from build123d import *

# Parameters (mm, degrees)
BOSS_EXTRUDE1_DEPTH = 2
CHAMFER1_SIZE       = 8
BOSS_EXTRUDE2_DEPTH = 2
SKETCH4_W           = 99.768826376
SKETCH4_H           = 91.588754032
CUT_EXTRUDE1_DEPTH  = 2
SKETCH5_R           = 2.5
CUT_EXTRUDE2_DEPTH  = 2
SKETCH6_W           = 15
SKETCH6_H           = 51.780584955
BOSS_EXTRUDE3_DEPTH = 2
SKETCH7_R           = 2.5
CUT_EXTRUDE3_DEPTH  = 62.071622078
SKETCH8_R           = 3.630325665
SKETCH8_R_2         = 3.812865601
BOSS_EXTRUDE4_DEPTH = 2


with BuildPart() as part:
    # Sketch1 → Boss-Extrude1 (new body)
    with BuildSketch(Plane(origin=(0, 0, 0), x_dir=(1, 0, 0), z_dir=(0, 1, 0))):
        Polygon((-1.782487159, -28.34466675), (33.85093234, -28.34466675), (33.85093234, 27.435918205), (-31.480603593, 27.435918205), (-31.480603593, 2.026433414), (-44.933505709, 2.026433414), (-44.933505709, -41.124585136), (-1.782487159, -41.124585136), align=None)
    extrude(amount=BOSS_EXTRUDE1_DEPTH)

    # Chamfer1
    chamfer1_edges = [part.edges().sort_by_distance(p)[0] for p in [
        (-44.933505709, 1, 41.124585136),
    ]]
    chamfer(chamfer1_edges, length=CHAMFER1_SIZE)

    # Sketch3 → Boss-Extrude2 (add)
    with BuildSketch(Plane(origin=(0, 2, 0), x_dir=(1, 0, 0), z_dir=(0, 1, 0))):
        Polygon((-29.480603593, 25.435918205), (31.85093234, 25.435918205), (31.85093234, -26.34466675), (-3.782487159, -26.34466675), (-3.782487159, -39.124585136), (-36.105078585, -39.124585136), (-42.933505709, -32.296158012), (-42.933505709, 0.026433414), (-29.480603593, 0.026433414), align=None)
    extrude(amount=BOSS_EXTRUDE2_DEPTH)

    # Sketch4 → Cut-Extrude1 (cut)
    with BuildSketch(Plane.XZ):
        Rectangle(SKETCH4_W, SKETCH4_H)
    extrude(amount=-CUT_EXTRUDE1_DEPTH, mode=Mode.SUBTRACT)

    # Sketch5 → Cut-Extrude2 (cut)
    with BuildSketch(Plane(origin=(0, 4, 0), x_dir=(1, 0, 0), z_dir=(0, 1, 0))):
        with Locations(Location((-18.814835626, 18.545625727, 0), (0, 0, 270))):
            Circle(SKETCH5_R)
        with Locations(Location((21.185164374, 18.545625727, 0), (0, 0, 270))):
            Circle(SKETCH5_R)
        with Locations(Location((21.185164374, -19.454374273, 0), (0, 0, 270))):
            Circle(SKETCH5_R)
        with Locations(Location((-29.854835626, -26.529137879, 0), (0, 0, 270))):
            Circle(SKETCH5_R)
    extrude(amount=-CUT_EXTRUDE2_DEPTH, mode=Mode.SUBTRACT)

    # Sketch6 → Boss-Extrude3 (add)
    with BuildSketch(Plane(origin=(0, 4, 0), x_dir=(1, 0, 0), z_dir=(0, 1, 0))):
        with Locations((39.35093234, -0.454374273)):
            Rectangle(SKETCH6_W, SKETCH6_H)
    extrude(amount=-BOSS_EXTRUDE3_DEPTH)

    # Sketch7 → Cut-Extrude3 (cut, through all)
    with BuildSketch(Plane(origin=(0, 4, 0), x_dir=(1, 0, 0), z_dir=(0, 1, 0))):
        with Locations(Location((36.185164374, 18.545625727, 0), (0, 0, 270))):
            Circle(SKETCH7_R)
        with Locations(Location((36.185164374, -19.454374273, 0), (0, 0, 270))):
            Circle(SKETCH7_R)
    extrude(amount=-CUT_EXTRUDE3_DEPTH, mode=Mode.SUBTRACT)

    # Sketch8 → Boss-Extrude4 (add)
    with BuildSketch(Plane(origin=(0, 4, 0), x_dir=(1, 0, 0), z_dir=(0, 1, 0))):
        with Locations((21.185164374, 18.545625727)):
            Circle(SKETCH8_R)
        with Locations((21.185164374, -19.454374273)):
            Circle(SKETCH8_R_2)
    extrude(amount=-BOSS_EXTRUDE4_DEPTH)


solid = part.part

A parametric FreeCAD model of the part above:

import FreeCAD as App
import Part
import Sketcher
from FreeCAD import Vector
Q = App.Units.Quantity


def edges_at(feature, points):
    """Names of the edges that pass closest to the given points."""
    edges = feature.Shape.Edges
    near = lambda p: min(range(len(edges)), key=lambda i: edges[i].distToShape(Part.Vertex(*p))[0])
    return sorted({f"Edge{near(p) + 1}" for p in points})

doc = App.newDocument("Part")
body = doc.addObject("PartDesign::Body", "Body")

# Sketch on XZ plane
sketch1 = doc.addObject("Sketcher::SketchObject", "Sketch")
body.addObject(sketch1)
sketch1.AttachmentSupport = (doc.XZ_Plane, [""])
sketch1.MapMode = "FlatFace"
sketch1.addGeometry([
    Part.LineSegment(Vector(-1.782487, 28.344667, 0), Vector(33.850932, 28.344667, 0)),  # 0
    Part.LineSegment(Vector(33.850932, 28.344667, 0), Vector(33.850932, -27.435918, 0)),  # 1
    Part.LineSegment(Vector(33.850932, -27.435918, 0), Vector(-31.480604, -27.435918, 0)),  # 2
    Part.LineSegment(Vector(-31.480604, -27.435918, 0), Vector(-31.480604, -2.026433, 0)),  # 3
    Part.LineSegment(Vector(-31.480604, -2.026433, 0), Vector(-44.933506, -2.026433, 0)),  # 4
    Part.LineSegment(Vector(-44.933506, -2.026433, 0), Vector(-44.933506, 41.124585, 0)),  # 5
    Part.LineSegment(Vector(-44.933506, 41.124585, 0), Vector(-1.782487, 41.124585, 0)),  # 6
    Part.LineSegment(Vector(-1.782487, 41.124585, 0), Vector(-1.782487, 28.344667, 0)),  # 7
], False)
sketch1.addConstraint([
    Sketcher.Constraint("Coincident", 0, 2, 1, 1),
    Sketcher.Constraint("Coincident", 1, 2, 2, 1),
    Sketcher.Constraint("Coincident", 2, 2, 3, 1),
    Sketcher.Constraint("Coincident", 3, 2, 4, 1),
    Sketcher.Constraint("Coincident", 4, 2, 5, 1),
    Sketcher.Constraint("Coincident", 5, 2, 6, 1),
    Sketcher.Constraint("Coincident", 6, 2, 7, 1),
    Sketcher.Constraint("Coincident", 7, 2, 0, 1),
    Sketcher.Constraint("Horizontal", 0),
    Sketcher.Constraint("Vertical", 1),
    Sketcher.Constraint("Horizontal", 2),
    Sketcher.Constraint("Vertical", 3),
    Sketcher.Constraint("Horizontal", 4),
    Sketcher.Constraint("Vertical", 5),
    Sketcher.Constraint("Horizontal", 6),
    Sketcher.Constraint("Vertical", 7),
    Sketcher.Constraint("Equal", 6, 5),
    Sketcher.Constraint("DistanceX", 0, 1, 0, 2, 35.633419),
    Sketcher.Constraint("DistanceX", 6, 1, 6, 2, 43.151019),
    Sketcher.Constraint("DistanceY", 7, 2, 7, 1, 12.779918),
    Sketcher.Constraint("DistanceX", 2, 2, 2, 1, 65.331536),
    Sketcher.Constraint("DistanceY", 1, 2, 1, 1, 55.780585),
    Sketcher.Constraint("DistanceY", 1, 2, -1, 1, 27.435918),
    Sketcher.Constraint("DistanceX", -1, 1, 0, 2, 33.850932),
])
pad1 = doc.addObject("PartDesign::Pad", "Pad")
body.addObject(pad1)
pad1.Profile = sketch1
pad1.Length = 2
pad1.Reversed = True
doc.recompute()

chamfer = doc.addObject("PartDesign::Chamfer", "Chamfer")
body.addObject(chamfer)
chamfer.Base = (pad1, edges_at(pad1, [(-44.934, 1, 41.125)]))
chamfer.Size = 8

# Sketch on XZ plane
sketch2 = doc.addObject("Sketcher::SketchObject", "Sketch001")
body.addObject(sketch2)
sketch2.AttachmentSupport = (doc.XZ_Plane, [""])
sketch2.MapMode = "FlatFace"
sketch2.AttachmentOffset = App.Placement(Vector(0, 0, -2), App.Rotation())
sketch2.addGeometry([
    Part.LineSegment(Vector(31.850932, -25.435918, 0), Vector(-29.480604, -25.435918, 0)),  # 0
    Part.LineSegment(Vector(-29.480604, -25.435918, 0), Vector(-29.480604, -0.026433, 0)),  # 1
    Part.LineSegment(Vector(-29.480604, -0.026433, 0), Vector(-42.933506, -0.026433, 0)),  # 2
    Part.LineSegment(Vector(-42.933506, -0.026433, 0), Vector(-42.933506, 32.296158, 0)),  # 3
    Part.LineSegment(Vector(-42.933506, 32.296158, 0), Vector(-36.105079, 39.124585, 0)),  # 4
    Part.LineSegment(Vector(-36.105079, 39.124585, 0), Vector(-3.782487, 39.124585, 0)),  # 5
    Part.LineSegment(Vector(-3.782487, 39.124585, 0), Vector(-3.782487, 26.344667, 0)),  # 6
    Part.LineSegment(Vector(-3.782487, 26.344667, 0), Vector(31.850932, 26.344667, 0)),  # 7
    Part.LineSegment(Vector(31.850932, 26.344667, 0), Vector(31.850932, -25.435918, 0)),  # 8
], False)
sketch2.addConstraint([
    Sketcher.Constraint("Coincident", 0, 2, 1, 1),
    Sketcher.Constraint("Coincident", 1, 2, 2, 1),
    Sketcher.Constraint("Coincident", 2, 2, 3, 1),
    Sketcher.Constraint("Coincident", 3, 2, 4, 1),
    Sketcher.Constraint("Coincident", 4, 2, 5, 1),
    Sketcher.Constraint("Coincident", 5, 2, 6, 1),
    Sketcher.Constraint("Coincident", 6, 2, 7, 1),
    Sketcher.Constraint("Coincident", 7, 2, 8, 1),
    Sketcher.Constraint("Coincident", 8, 2, 0, 1),
    Sketcher.Constraint("Horizontal", 0),
    Sketcher.Constraint("Vertical", 1),
    Sketcher.Constraint("Horizontal", 2),
    Sketcher.Constraint("Vertical", 3),
    Sketcher.Constraint("Horizontal", 5),
    Sketcher.Constraint("Vertical", 6),
    Sketcher.Constraint("Horizontal", 7),
    Sketcher.Constraint("Vertical", 8),
    Sketcher.Constraint("Equal", 5, 3),
    Sketcher.Constraint("Angle", 4, Q("45 deg")),
    Sketcher.Constraint("DistanceX", 5, 1, 5, 2, 32.322591),
    Sketcher.Constraint("DistanceX", 7, 1, 7, 2, 35.633419),
    Sketcher.Constraint("DistanceY", 6, 2, 6, 1, 12.779918),
    Sketcher.Constraint("DistanceY", 1, 2, 6, 2, 26.3711),
    Sketcher.Constraint("DistanceX", 0, 2, 0, 1, 61.331536),
    Sketcher.Constraint("DistanceY", 1, 1, 1, 2, 25.409485),
    Sketcher.Constraint("DistanceY", 0, 2, -1, 1, 25.435918),
    Sketcher.Constraint("DistanceX", 4, 2, -1, 1, 36.105079),
])
pad2 = doc.addObject("PartDesign::Pad", "Pad001")
body.addObject(pad2)
pad2.Profile = sketch2
pad2.Length = 2
pad2.Reversed = True

# Sketch on XZ plane
sketch3 = doc.addObject("Sketcher::SketchObject", "Sketch002")
body.addObject(sketch3)
sketch3.AttachmentSupport = (doc.XZ_Plane, [""])
sketch3.MapMode = "FlatFace"
sketch3.addGeometry([
    Part.LineSegment(Vector(-49.884413, 45.794377, 0), Vector(-49.884413, -45.794377, 0)),
    Part.LineSegment(Vector(-49.884413, -45.794377, 0), Vector(49.884413, -45.794377, 0)),
    Part.LineSegment(Vector(49.884413, -45.794377, 0), Vector(49.884413, 45.794377, 0)),
    Part.LineSegment(Vector(49.884413, 45.794377, 0), Vector(-49.884413, 45.794377, 0)),
], False)
sketch3.addConstraint([
    Sketcher.Constraint("Coincident", 0, 2, 1, 1),
    Sketcher.Constraint("Coincident", 1, 2, 2, 1),
    Sketcher.Constraint("Coincident", 2, 2, 3, 1),
    Sketcher.Constraint("Coincident", 3, 2, 0, 1),
    Sketcher.Constraint("Vertical", 0),
    Sketcher.Constraint("Horizontal", 1),
    Sketcher.Constraint("Vertical", 2),
    Sketcher.Constraint("Horizontal", 3),
    Sketcher.Constraint("Symmetric", 0, 2, 2, 2, -1, 1),
    Sketcher.Constraint("DistanceX", 1, 1, 1, 2, 99.768826),
    Sketcher.Constraint("DistanceY", 0, 2, 0, 1, 91.588754),
])
pocket1 = doc.addObject("PartDesign::Pocket", "Pocket")
body.addObject(pocket1)
pocket1.Profile = sketch3
pocket1.Length = 2

# Sketch on XZ plane
sketch4 = doc.addObject("Sketcher::SketchObject", "Sketch003")
body.addObject(sketch4)
sketch4.AttachmentSupport = (doc.XZ_Plane, [""])
sketch4.MapMode = "FlatFace"
sketch4.AttachmentOffset = App.Placement(Vector(0, 0, -4), App.Rotation())
sketch4.addGeometry([
    Part.Circle(Vector(-18.814836, -18.545626, 0), Vector(0, 0, 1), 2.5),
    Part.Circle(Vector(21.185164, -18.545626, 0), Vector(0, 0, 1), 2.5),
    Part.Circle(Vector(21.185164, 19.454374, 0), Vector(0, 0, 1), 2.5),
    Part.Circle(Vector(-29.854836, 26.529138, 0), Vector(0, 0, 1), 2.5),
], False)
sketch4.addConstraint([
    Sketcher.Constraint("Equal", 0, 1),
    Sketcher.Constraint("Equal", 1, 2),
    Sketcher.Constraint("Equal", 2, 3),
    Sketcher.Constraint("Horizontal", 0, 3, 1, 3),
    Sketcher.Constraint("Vertical", 1, 3, 2, 3),
    Sketcher.Constraint("Diameter", 0, 5.0),
    Sketcher.Constraint("DistanceX", 0, 3, 1, 3, 40.0),
    Sketcher.Constraint("DistanceY", 1, 3, 2, 3, 38.0),
    Sketcher.Constraint("DistanceX", 3, 3, 0, 3, 11.04),
    Sketcher.Constraint("DistanceX", 0, 3, -1, 1, 18.814836),
    Sketcher.Constraint("DistanceY", 0, 3, -1, 1, 18.545626),
    Sketcher.Constraint("DistanceY", -1, 1, 3, 3, 26.529138),
])
pocket2 = doc.addObject("PartDesign::Pocket", "Pocket001")
body.addObject(pocket2)
pocket2.Profile = sketch4
pocket2.Length = 2
pocket2.Reversed = True

# Sketch on XZ plane
sketch5 = doc.addObject("Sketcher::SketchObject", "Sketch004")
body.addObject(sketch5)
sketch5.AttachmentSupport = (doc.XZ_Plane, [""])
sketch5.MapMode = "FlatFace"
sketch5.AttachmentOffset = App.Placement(Vector(0, 0, -4), App.Rotation())
sketch5.addGeometry([
    Part.LineSegment(Vector(31.850932, -25.435918, 0), Vector(31.850932, 26.344667, 0)),
    Part.LineSegment(Vector(31.850932, 26.344667, 0), Vector(46.850932, 26.344667, 0)),
    Part.LineSegment(Vector(46.850932, 26.344667, 0), Vector(46.850932, -25.435918, 0)),
    Part.LineSegment(Vector(46.850932, -25.435918, 0), Vector(31.850932, -25.435918, 0)),
], False)
sketch5.addConstraint([
    Sketcher.Constraint("Coincident", 0, 2, 1, 1),
    Sketcher.Constraint("Coincident", 1, 2, 2, 1),
    Sketcher.Constraint("Coincident", 2, 2, 3, 1),
    Sketcher.Constraint("Coincident", 3, 2, 0, 1),
    Sketcher.Constraint("Vertical", 0),
    Sketcher.Constraint("Horizontal", 1),
    Sketcher.Constraint("Vertical", 2),
    Sketcher.Constraint("Horizontal", 3),
    Sketcher.Constraint("DistanceX", 1, 1, 1, 2, 15.0),
    Sketcher.Constraint("DistanceY", 0, 1, 0, 2, 51.780585),
    Sketcher.Constraint("DistanceY", 2, 2, -1, 1, 25.435918),
    Sketcher.Constraint("DistanceX", -1, 1, 0, 2, 31.850932),
])
pad3 = doc.addObject("PartDesign::Pad", "Pad002")
body.addObject(pad3)
pad3.Profile = sketch5
pad3.Length = 2

# Sketch on XZ plane
sketch6 = doc.addObject("Sketcher::SketchObject", "Sketch005")
body.addObject(sketch6)
sketch6.AttachmentSupport = (doc.XZ_Plane, [""])
sketch6.MapMode = "FlatFace"
sketch6.AttachmentOffset = App.Placement(Vector(0, 0, -4), App.Rotation())
sketch6.addGeometry([
    Part.Circle(Vector(36.185164, -18.545626, 0), Vector(0, 0, 1), 2.5),
    Part.Circle(Vector(36.185164, 19.454374, 0), Vector(0, 0, 1), 2.5),
], False)
sketch6.addConstraint([
    Sketcher.Constraint("Equal", 0, 1),
    Sketcher.Constraint("Vertical", 0, 3, 1, 3),
    Sketcher.Constraint("Diameter", 0, 5.0),
    Sketcher.Constraint("DistanceY", 0, 3, 1, 3, 38.0),
    Sketcher.Constraint("DistanceX", -1, 1, 0, 3, 36.185164),
    Sketcher.Constraint("DistanceY", 0, 3, -1, 1, 18.545626),
])
pocket3 = doc.addObject("PartDesign::Pocket", "Pocket002")
body.addObject(pocket3)
pocket3.Profile = sketch6
pocket3.Type = "ThroughAll"
pocket3.Reversed = True

# Sketch on XZ plane
sketch7 = doc.addObject("Sketcher::SketchObject", "Sketch006")
body.addObject(sketch7)
sketch7.AttachmentSupport = (doc.XZ_Plane, [""])
sketch7.MapMode = "FlatFace"
sketch7.AttachmentOffset = App.Placement(Vector(0, 0, -4), App.Rotation())
sketch7.addGeometry([
    Part.Circle(Vector(21.185164, -18.545626, 0), Vector(0, 0, 1), 3.630326),
    Part.Circle(Vector(21.185164, 19.454374, 0), Vector(0, 0, 1), 3.812866),
], False)
sketch7.addConstraint([
    Sketcher.Constraint("Vertical", 0, 3, 1, 3),
    Sketcher.Constraint("DistanceY", 0, 3, 1, 3, 38.0),
    Sketcher.Constraint("Diameter", 0, 7.260651),
    Sketcher.Constraint("Diameter", 1, 7.625731),
    Sketcher.Constraint("DistanceX", -1, 1, 0, 3, 21.185164),
    Sketcher.Constraint("DistanceY", 0, 3, -1, 1, 18.545626),
])
pad4 = doc.addObject("PartDesign::Pad", "Pad003")
body.addObject(pad4)
pad4.Profile = sketch7
pad4.Length = 2

doc.recompute()
